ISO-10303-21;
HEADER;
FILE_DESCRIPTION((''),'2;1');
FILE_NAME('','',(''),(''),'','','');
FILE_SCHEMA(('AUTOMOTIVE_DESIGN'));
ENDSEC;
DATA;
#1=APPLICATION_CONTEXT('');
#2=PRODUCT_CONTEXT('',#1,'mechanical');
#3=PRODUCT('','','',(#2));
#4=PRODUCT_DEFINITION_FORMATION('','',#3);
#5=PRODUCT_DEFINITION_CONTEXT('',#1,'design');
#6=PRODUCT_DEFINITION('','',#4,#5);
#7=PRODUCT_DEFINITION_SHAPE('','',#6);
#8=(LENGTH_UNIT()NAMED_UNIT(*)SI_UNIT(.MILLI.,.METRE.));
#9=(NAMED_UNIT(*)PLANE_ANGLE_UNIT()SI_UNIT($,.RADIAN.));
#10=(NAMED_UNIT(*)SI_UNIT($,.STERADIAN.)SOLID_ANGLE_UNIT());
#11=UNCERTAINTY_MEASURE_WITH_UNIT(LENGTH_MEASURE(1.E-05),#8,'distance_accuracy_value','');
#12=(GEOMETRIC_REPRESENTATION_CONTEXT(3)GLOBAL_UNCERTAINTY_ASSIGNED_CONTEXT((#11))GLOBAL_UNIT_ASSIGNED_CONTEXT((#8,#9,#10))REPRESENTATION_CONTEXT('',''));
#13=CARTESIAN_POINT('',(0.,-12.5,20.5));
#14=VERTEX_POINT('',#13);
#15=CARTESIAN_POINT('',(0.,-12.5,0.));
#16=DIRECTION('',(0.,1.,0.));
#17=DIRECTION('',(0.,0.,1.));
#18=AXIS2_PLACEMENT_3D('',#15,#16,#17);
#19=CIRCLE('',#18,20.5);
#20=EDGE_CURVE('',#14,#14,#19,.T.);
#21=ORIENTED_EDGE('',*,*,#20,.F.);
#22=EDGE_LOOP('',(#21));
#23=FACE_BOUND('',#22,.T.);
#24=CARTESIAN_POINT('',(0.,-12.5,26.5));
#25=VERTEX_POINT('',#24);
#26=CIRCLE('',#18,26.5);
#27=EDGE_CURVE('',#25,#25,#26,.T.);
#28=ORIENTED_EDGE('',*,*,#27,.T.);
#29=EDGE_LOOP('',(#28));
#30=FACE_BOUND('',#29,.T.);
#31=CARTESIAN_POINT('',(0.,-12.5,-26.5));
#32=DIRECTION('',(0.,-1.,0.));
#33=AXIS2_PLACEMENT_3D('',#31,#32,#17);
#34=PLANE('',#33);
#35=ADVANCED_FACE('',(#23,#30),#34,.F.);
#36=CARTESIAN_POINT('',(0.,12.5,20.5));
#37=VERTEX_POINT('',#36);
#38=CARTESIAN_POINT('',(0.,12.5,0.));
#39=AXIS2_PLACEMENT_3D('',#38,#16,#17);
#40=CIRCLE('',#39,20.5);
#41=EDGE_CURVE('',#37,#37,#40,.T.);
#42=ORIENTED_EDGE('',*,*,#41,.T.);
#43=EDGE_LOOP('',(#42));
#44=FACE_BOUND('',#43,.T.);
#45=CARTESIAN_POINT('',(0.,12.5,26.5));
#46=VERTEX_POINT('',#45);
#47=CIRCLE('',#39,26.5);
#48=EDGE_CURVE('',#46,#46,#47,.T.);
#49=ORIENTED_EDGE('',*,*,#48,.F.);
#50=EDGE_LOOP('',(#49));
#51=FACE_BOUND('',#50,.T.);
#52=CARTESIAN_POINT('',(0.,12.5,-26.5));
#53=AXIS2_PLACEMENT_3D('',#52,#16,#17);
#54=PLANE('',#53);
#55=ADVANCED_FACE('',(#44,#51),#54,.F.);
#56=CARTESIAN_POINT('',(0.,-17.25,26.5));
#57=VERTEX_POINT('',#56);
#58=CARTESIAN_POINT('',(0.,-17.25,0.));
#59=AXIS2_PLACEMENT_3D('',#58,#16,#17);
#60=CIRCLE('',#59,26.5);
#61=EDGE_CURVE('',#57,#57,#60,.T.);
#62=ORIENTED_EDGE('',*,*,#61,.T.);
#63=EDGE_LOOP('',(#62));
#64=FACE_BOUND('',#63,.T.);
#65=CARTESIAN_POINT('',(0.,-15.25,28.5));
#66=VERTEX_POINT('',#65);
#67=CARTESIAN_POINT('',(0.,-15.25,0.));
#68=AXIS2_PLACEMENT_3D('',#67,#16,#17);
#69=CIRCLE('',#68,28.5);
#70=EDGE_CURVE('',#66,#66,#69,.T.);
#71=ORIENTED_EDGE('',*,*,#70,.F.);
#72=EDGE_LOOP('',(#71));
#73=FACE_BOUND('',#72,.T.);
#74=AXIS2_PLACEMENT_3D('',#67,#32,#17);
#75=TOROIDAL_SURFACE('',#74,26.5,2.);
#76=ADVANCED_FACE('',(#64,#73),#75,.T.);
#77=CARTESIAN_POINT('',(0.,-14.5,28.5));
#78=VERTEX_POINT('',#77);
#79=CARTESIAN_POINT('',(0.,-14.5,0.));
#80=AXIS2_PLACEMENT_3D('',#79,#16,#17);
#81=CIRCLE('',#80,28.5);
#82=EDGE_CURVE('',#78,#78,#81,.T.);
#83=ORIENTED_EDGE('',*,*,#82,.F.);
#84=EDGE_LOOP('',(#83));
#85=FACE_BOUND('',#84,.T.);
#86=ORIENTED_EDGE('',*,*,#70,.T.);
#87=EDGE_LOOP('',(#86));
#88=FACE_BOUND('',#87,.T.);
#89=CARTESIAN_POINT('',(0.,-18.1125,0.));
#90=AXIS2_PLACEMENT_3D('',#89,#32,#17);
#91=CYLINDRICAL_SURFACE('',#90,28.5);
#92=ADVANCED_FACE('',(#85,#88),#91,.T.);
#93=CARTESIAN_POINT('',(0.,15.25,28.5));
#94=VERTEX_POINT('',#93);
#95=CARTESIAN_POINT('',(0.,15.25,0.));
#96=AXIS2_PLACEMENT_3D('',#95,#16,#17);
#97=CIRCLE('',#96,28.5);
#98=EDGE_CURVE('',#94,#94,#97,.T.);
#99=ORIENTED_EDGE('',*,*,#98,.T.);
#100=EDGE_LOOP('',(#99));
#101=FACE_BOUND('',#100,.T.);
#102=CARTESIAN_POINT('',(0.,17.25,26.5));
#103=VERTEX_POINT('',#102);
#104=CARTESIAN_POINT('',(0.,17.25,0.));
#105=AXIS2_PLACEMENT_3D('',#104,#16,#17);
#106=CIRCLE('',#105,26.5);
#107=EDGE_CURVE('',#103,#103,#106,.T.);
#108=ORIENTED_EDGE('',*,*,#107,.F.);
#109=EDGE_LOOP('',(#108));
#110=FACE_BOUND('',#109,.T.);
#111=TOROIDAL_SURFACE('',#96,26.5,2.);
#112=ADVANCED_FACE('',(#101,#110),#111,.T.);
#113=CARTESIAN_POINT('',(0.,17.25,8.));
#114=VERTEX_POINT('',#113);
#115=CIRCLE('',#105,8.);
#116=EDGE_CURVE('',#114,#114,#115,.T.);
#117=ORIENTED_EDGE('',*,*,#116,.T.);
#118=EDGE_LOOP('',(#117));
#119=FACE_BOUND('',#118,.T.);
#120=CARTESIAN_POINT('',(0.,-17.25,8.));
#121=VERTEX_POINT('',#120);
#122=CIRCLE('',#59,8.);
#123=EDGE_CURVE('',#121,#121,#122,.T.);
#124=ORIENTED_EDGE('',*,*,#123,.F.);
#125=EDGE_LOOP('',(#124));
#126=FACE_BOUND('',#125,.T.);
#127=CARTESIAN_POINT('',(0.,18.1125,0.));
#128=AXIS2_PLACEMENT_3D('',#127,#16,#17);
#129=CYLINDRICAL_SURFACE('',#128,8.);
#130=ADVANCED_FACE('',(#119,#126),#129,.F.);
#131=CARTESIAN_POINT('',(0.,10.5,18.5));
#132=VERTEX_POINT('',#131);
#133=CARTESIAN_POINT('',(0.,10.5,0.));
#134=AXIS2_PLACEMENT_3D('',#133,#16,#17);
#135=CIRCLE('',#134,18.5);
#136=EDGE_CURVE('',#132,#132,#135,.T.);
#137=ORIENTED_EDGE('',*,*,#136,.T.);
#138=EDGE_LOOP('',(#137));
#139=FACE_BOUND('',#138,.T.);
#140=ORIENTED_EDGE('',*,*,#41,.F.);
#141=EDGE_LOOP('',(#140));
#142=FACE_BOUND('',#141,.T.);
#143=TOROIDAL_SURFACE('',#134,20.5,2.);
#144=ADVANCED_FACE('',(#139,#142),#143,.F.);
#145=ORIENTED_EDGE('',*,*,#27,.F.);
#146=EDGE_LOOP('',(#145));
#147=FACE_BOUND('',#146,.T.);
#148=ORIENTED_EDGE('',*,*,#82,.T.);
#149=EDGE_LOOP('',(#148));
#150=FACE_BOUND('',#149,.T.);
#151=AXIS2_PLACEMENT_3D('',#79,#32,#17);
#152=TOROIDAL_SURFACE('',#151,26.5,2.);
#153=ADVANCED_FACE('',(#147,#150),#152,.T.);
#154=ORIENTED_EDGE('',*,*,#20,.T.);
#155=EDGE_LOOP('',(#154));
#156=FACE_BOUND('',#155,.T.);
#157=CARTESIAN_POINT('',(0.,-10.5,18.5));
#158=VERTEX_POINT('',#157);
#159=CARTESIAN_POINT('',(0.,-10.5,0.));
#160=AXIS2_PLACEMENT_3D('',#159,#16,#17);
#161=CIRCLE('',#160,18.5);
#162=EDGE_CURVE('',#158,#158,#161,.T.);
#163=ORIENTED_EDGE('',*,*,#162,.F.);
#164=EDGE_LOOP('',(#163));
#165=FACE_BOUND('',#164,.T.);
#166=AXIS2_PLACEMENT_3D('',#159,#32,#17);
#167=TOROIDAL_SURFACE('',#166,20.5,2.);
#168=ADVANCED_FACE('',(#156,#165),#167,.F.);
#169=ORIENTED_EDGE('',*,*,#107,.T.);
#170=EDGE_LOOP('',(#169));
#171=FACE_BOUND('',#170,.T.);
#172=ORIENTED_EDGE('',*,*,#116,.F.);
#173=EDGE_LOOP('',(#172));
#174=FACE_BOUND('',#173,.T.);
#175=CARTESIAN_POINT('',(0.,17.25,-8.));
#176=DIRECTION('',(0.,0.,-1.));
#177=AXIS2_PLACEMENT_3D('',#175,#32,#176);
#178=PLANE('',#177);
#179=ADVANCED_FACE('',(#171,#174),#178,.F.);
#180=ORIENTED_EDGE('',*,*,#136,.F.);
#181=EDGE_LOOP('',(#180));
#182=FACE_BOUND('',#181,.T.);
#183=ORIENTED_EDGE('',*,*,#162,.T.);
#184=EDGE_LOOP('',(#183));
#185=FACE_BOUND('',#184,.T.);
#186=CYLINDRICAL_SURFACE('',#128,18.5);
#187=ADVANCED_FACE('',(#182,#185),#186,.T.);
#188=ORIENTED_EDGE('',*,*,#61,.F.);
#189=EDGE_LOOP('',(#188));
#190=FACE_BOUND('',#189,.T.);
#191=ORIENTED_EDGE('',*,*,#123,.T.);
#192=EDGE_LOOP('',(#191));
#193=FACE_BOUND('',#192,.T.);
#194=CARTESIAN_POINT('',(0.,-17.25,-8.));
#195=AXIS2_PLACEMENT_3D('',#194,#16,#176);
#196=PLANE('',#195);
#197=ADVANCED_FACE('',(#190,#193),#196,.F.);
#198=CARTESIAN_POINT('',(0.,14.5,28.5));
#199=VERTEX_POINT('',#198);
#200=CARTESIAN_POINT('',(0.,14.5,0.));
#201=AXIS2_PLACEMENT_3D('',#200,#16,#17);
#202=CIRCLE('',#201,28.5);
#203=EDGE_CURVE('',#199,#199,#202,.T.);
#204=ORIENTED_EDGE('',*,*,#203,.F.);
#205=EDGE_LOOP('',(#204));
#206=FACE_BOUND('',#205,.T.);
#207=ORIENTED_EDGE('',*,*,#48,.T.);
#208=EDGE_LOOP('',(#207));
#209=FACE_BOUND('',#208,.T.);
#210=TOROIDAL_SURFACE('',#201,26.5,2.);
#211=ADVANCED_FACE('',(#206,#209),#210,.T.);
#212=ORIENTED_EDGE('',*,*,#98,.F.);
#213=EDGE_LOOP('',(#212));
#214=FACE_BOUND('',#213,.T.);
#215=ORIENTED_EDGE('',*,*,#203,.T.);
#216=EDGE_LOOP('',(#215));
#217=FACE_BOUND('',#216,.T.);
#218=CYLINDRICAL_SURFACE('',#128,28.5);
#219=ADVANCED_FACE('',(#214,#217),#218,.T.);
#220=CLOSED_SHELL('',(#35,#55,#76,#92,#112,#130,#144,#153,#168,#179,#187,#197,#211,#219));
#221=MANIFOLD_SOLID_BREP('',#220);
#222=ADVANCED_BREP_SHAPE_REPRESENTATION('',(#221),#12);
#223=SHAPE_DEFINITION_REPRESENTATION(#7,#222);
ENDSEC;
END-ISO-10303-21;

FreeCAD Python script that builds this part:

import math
import FreeCAD as App
import Part
import Sketcher

V = App.Vector

doc = App.newDocument("Part")
body = doc.addObject("PartDesign::Body", "Body")

sketch1 = doc.addObject("Sketcher::SketchObject", "Sketch")
body.addObject(sketch1)
sketch1.AttachmentSupport = (doc.YZ_Plane, [""])
sketch1.MapMode = "FlatFace"
sketch1.addGeometry([
    Part.LineSegment(V(17.2, -8, 0), V(0, -8, 0)),
    Part.LineSegment(V(0, -8, 0), V(0, -18.5, 0)),
    Part.LineSegment(V(0, -18.5, 0), V(10.5, -18.5, 0)),
    Part.ArcOfCircle(Part.Circle(V(10.5, -20.5, 0), V(0, 0, 1), 2), math.radians(0), math.radians(90)),
    Part.LineSegment(V(12.5, -20.5, 0), V(12.5, -26.5, 0)),
    Part.ArcOfCircle(Part.Circle(V(14.5, -26.5, 0), V(0, 0, 1), 2), math.radians(-180), math.radians(-90)),
    Part.LineSegment(V(14.5, -28.5, 0), V(15.2, -28.5, 0)),
    Part.ArcOfCircle(Part.Circle(V(15.2, -26.5, 0), V(0, 0, 1), 2), math.radians(-90), math.radians(0)),
    Part.LineSegment(V(17.2, -26.5, 0), V(17.2, -8, 0)),
], False)
sketch1.addConstraint([
    Sketcher.Constraint("Coincident", 0, 2, 1, 1),
    Sketcher.Constraint("Coincident", 1, 2, 2, 1),
    Sketcher.Constraint("Tangent", 2, 2, 3, 2),
    Sketcher.Constraint("Tangent", 3, 1, 4, 1),
    Sketcher.Constraint("Tangent", 4, 2, 5, 1),
    Sketcher.Constraint("Tangent", 5, 2, 6, 1),
    Sketcher.Constraint("Tangent", 6, 2, 7, 1),
    Sketcher.Constraint("Tangent", 7, 2, 8, 1),
    Sketcher.Constraint("Coincident", 8, 2, 0, 1),
    Sketcher.Constraint("Horizontal", 0),
    Sketcher.Constraint("Vertical", 1),
    Sketcher.Constraint("Horizontal", 2),
    Sketcher.Constraint("Vertical", 4),
    Sketcher.Constraint("Horizontal", 6),
    Sketcher.Constraint("Vertical", 8),
    Sketcher.Constraint("Equal", 3, 5),
    Sketcher.Constraint("Equal", 5, 7),
    Sketcher.Constraint("PointOnObject", 0, 2, -2),
    Sketcher.Constraint("Equal", 2, 1),
    Sketcher.Constraint("Radius", 3, 2.0),
    Sketcher.Constraint("DistanceY", 4, 2, 4, 1, 6.0),
    Sketcher.Constraint("DistanceX", 2, 1, 2, 2, 10.5),
    Sketcher.Constraint("DistanceY", 0, 2, -1, 1, 8.0),
    Sketcher.Constraint("DistanceX", 0, 2, 0, 1, 17.25),
])
revolution = doc.addObject("PartDesign::Revolution", "Revolution")
body.addObject(revolution)
revolution.Profile = sketch1
revolution.ReferenceAxis = (sketch1, ["H_Axis"])
revolution.Angle = 360
doc.recompute()

mirrored = doc.addObject("PartDesign::Mirrored", "Mirrored")
body.addObject(mirrored)
mirrored.Originals = [revolution]
mirrored.MirrorPlane = (doc.XZ_Plane, [""])
body.Tip = mirrored

doc.recompute()
